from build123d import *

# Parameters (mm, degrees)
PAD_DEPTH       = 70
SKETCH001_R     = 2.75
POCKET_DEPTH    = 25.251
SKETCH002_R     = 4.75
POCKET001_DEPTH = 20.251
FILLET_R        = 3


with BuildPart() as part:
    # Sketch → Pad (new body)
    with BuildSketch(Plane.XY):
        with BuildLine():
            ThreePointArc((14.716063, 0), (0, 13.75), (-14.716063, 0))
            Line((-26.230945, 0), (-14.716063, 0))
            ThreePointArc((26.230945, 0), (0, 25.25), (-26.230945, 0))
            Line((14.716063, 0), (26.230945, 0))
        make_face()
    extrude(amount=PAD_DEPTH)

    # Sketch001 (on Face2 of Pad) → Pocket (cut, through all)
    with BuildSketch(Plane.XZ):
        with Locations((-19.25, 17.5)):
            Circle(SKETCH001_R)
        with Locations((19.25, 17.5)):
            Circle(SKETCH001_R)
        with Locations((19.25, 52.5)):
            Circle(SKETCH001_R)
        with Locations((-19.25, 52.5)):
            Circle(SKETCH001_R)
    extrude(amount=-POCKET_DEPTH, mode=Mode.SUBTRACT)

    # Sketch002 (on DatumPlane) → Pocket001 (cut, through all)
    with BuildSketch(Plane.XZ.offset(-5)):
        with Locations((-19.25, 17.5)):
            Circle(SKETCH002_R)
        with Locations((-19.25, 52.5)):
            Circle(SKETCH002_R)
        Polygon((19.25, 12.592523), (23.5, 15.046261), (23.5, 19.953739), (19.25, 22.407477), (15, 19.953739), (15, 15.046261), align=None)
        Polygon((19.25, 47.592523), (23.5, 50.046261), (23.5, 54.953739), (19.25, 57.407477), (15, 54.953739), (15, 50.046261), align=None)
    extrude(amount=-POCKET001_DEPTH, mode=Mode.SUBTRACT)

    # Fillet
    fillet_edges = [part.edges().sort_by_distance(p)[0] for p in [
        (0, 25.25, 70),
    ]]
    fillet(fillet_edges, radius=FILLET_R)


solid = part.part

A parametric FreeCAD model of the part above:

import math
import FreeCAD as App
import Part
import Sketcher
from FreeCAD import Vector
Q = App.Units.Quantity


def edges_at(feature, points):
    """Names of the edges that pass closest to the given points."""
    edges = feature.Shape.Edges
    near = lambda p: min(range(len(edges)), key=lambda i: edges[i].distToShape(Part.Vertex(*p))[0])
    return sorted({f"Edge{near(p) + 1}" for p in points})


def add_polygon(sketch, points):
    """Adds a closed chain of lines whose ends are joined by coincident constraints."""
    first, n = sketch.GeometryCount, len(points)
    for a, b in zip(points, points[1:] + points[:1]):
        sketch.addGeometry(Part.LineSegment(App.Vector(*a, 0), App.Vector(*b, 0)), False)
    for i in range(n):
        sketch.addConstraint(Sketcher.Constraint("Coincident", first + i, 2, first + (i + 1) % n, 1))

doc = App.newDocument("Part")
body = doc.addObject("PartDesign::Body", "Body")

# Sketch on XY plane
sketch1 = body.newObject("Sketcher::SketchObject", "Sketch")
sketch1.AttachmentSupport = (doc.getObject("XY_Plane"), [""])
sketch1.MapMode = "FlatFace"
sketch1.addGeometry([
    Part.ArcOfCircle(Part.Circle(Vector(0, -1, 0), Vector(0, 0, 1), 15), math.radians(4), math.radians(176)),
    Part.LineSegment(Vector(15, 0, 0), Vector(26, 0, 0)),
    Part.ArcOfCircle(Part.Circle(Vector(0, -1, 0), Vector(0, 0, 1), 26), math.radians(2), math.radians(178)),
    Part.LineSegment(Vector(-26, 0, 0), Vector(-15, 0, 0)),
], False)
sketch1.addConstraint([
    Sketcher.Constraint("Coincident", 0, 1, 1, 1),
    Sketcher.Constraint("Coincident", 1, 2, 2, 1),
    Sketcher.Constraint("Coincident", 2, 2, 3, 1),
    Sketcher.Constraint("Coincident", 3, 2, 0, 2),
    Sketcher.Constraint("Horizontal", 1),
    Sketcher.Constraint("Horizontal", 3),
    Sketcher.Constraint("Coincident", 2, 3, 0, 3),
    Sketcher.Constraint("Symmetric", 1, 2, 2, 2, -1, 1),
    Sketcher.Constraint("PointOnObject", 0, 3, -2),
    Sketcher.Constraint("Radius", 0, 14.75),
    Sketcher.Constraint("Radius", 2, 26.25),
    Sketcher.Constraint("DistanceY", 0, 3, -1, 1, 1.0),
])
pad1 = body.newObject("PartDesign::Pad", "Pad")
pad1.Profile = sketch1
pad1.Length = 70

# Sketch on XZ plane
sketch2 = body.newObject("Sketcher::SketchObject", "Sketch001")
sketch2.AttachmentSupport = (doc.getObject("XZ_Plane"), [""])
sketch2.MapMode = "FlatFace"
sketch2.addGeometry([
    Part.Circle(Vector(-19.2, 17.5, 0), Vector(0, 0, 1), 2.8),
    Part.Circle(Vector(19.2, 17.5, 0), Vector(0, 0, 1), 2.8),
    Part.Circle(Vector(19.2, 52.5, 0), Vector(0, 0, 1), 2.8),
    Part.Circle(Vector(-19.2, 52.5, 0), Vector(0, 0, 1), 2.8),
], False)
sketch2.addConstraint([
    Sketcher.Constraint("Equal", 0, 1),
    Sketcher.Constraint("Equal", 1, 2),
    Sketcher.Constraint("Equal", 2, 3),
    Sketcher.Constraint("Symmetric", 0, 3, 1, 3, -2),
    Sketcher.Constraint("Symmetric", 2, 3, 3, 3, -2),
    Sketcher.Constraint("Vertical", 1, 3, 2, 3),
    Sketcher.Constraint("Diameter", 0, 5.5),
    Sketcher.Constraint("DistanceY", 1, 3, 2, 3, 35.0),
    Sketcher.Constraint("DistanceY", -1, 1, 0, 3, 17.5),
    Sketcher.Constraint("DistanceX", 0, 3, 1, 3, 38.5),
])
pocket1 = body.newObject("PartDesign::Pocket", "Pocket")
pocket1.Profile = sketch2
pocket1.Type = "ThroughAll"

# Sketch on XZ plane
sketch3 = body.newObject("Sketcher::SketchObject", "Sketch002")
sketch3.AttachmentSupport = (doc.getObject("XZ_Plane"), [""])
sketch3.MapMode = "FlatFace"
sketch3.AttachmentOffset = App.Placement(Vector(0, 0, -5), App.Rotation())
sketch3.addGeometry(Part.Circle(Vector(-19.2, 17.5, 0), Vector(0, 0, 1), 4.8), False)  # 0
sketch3.addGeometry(Part.Circle(Vector(-19.2, 52.5, 0), Vector(0, 0, 1), 4.8), False)  # 1
add_polygon(sketch3, [(19.2, 12.6), (23.5, 15), (23.5, 20), (19.2, 22.4), (15, 20), (15, 15)])  # lines 2-7
add_polygon(sketch3, [(19.2, 47.6), (23.5, 50), (23.5, 55), (19.2, 57.4), (15, 55), (15, 50)])  # lines 8-13
sketch3.addConstraint([
    Sketcher.Constraint("Vertical", 3),
    Sketcher.Constraint("Vertical", 6),
    Sketcher.Constraint("Vertical", 9),
    Sketcher.Constraint("Vertical", 12),
    Sketcher.Constraint("Equal", 0, 1),
    Sketcher.Constraint("Parallel", 2, 5),
    Sketcher.Constraint("Parallel", 4, 7),
    Sketcher.Constraint("Parallel", 5, 8),
    Sketcher.Constraint("Parallel", 7, 10),
    Sketcher.Constraint("Parallel", 8, 11),
    Sketcher.Constraint("Parallel", 10, 13),
    Sketcher.Constraint("Horizontal", 3, 2, 5, 2),
    Sketcher.Constraint("Horizontal", 2, 2, 6, 2),
    Sketcher.Constraint("Horizontal", 9, 2, 11, 2),
    Sketcher.Constraint("Horizontal", 8, 2, 12, 2),
    Sketcher.Constraint("Vertical", 0, 3, 1, 3),
    Sketcher.Constraint("Vertical", 4, 2, 7, 2),
    Sketcher.Constraint("Vertical", 3, 2, 8, 2),
    Sketcher.Constraint("Vertical", 7, 2, 10, 2),
    Sketcher.Constraint("Equal", 6, 9),
    Sketcher.Constraint("Diameter", 0, 9.5),
    Sketcher.Constraint("Angle", 2, Q("29.999993 deg")),
    Sketcher.Constraint("DistanceX", -1, 1, 5, 2, 15.0),
    Sketcher.Constraint("DistanceY", 0, 3, 1, 3, 35.0),
    Sketcher.Constraint("DistanceY", 2, 2, 8, 2, 35.0),
    Sketcher.Constraint("DistanceY", -1, 1, 0, 3, 17.5),
    Sketcher.Constraint("DistanceX", -1, 1, 2, 2, 23.5),
    Sketcher.Constraint("DistanceX", 0, 3, 4, 2, 38.5),
    Sketcher.Constraint("DistanceY", 3, 1, 3, 2, 4.907478),
    Sketcher.Constraint("DistanceY", -1, 1, 2, 2, 15.046261),
])
pocket2 = body.newObject("PartDesign::Pocket", "Pocket001")
pocket2.Profile = sketch3
pocket2.Type = "ThroughAll"
doc.recompute()

fillet = body.newObject("PartDesign::Fillet", "Fillet")
fillet.Base = (pocket2, edges_at(pocket2, [(0, 25.25, 70)]))
fillet.Radius = 3

doc.recompute()
